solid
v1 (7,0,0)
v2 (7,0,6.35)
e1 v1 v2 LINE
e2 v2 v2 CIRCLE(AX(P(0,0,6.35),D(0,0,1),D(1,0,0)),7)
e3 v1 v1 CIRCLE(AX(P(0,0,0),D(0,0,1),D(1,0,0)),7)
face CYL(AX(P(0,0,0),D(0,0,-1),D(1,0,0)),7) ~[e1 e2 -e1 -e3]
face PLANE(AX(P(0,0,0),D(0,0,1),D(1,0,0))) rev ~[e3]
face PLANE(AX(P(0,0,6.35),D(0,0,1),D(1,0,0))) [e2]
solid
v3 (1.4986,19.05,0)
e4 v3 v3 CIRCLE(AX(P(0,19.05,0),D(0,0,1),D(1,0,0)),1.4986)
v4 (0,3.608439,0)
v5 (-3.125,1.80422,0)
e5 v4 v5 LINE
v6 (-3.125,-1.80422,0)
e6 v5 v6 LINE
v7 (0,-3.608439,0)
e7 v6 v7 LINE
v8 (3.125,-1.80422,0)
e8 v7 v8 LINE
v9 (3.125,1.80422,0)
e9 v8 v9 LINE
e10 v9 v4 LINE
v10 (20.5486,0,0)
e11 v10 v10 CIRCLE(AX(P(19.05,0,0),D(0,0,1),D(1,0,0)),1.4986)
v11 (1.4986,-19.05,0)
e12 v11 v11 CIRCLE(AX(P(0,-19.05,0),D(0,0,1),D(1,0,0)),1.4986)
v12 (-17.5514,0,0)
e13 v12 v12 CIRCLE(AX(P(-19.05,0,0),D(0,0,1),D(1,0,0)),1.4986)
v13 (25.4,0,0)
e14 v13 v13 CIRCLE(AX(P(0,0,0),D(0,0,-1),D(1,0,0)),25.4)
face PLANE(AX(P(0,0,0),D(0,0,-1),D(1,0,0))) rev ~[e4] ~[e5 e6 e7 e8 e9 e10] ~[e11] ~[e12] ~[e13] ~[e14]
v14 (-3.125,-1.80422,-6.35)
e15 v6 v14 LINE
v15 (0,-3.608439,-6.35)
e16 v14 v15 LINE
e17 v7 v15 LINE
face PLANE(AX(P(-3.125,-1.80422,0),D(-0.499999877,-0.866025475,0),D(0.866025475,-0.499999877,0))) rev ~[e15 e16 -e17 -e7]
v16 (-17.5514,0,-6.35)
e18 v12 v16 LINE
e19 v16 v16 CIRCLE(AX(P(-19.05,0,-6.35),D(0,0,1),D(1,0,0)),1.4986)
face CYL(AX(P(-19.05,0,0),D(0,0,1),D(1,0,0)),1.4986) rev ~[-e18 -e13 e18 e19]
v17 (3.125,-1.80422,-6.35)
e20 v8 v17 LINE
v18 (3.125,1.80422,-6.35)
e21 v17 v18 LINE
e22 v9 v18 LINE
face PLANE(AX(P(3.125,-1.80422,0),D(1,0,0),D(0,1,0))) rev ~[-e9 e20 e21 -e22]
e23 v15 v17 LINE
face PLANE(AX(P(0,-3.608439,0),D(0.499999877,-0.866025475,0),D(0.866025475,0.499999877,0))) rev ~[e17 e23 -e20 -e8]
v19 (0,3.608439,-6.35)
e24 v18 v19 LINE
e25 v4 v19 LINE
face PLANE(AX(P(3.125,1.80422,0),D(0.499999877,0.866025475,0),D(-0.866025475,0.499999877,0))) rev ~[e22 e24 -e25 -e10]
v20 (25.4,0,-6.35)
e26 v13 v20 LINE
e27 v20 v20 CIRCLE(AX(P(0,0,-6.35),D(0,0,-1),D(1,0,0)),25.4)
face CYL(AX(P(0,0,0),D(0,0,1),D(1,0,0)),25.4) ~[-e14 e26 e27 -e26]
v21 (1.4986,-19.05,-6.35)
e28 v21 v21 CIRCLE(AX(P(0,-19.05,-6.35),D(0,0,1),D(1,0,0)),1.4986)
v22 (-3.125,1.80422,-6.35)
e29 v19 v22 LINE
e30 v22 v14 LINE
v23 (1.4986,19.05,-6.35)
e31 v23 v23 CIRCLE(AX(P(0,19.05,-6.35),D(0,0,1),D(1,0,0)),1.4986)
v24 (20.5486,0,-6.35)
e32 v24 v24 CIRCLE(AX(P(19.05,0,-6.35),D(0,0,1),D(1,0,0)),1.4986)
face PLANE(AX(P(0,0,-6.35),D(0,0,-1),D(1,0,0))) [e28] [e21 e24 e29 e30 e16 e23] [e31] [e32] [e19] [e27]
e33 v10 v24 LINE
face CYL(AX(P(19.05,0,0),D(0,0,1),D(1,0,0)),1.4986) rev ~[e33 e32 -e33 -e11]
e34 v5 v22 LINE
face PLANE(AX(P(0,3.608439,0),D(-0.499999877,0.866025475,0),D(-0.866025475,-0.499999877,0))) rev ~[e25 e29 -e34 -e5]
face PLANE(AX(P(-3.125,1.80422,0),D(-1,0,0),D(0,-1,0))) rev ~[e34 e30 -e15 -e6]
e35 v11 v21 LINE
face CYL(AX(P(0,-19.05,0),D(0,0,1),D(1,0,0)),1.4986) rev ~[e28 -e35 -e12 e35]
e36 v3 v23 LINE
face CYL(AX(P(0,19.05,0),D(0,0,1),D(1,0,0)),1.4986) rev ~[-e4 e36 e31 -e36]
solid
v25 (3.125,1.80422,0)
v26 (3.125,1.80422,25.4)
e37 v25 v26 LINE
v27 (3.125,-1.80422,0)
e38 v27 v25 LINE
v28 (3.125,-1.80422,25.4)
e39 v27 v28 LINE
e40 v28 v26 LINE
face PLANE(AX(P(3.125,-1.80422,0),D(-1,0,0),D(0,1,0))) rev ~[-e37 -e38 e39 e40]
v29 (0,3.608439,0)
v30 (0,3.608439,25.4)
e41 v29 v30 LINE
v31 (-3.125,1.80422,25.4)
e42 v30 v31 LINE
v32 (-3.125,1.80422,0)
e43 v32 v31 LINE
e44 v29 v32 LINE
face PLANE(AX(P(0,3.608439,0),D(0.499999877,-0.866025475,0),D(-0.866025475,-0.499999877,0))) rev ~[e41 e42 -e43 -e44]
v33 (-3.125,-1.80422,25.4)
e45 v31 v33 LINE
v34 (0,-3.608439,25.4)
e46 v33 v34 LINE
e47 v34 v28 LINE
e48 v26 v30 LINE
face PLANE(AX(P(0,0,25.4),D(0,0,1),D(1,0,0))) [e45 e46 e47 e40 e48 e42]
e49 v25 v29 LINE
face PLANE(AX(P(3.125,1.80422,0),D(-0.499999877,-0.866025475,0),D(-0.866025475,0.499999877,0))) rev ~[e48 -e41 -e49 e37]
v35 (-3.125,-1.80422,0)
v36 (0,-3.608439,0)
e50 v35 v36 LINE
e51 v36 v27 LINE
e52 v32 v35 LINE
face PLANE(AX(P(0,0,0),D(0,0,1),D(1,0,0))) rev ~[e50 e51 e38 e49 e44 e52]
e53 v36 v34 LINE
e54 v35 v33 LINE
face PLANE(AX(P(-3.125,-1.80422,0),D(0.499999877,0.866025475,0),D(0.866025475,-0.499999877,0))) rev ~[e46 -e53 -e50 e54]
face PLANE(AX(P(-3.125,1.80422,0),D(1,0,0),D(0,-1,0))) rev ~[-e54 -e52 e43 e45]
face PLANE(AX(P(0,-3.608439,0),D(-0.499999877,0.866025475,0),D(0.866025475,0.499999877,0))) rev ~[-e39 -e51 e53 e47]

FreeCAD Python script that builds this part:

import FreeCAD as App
import Part
import Sketcher

V = App.Vector
Q = App.Units.Quantity

doc = App.newDocument("Part")
body = doc.addObject("PartDesign::Body", "Body")

sketch1 = doc.addObject("Sketcher::SketchObject", "Sketch")
body.addObject(sketch1)
sketch1.AttachmentSupport = (doc.XY_Plane, [""])
sketch1.MapMode = "FlatFace"
sketch1.addGeometry(Part.LineSegment(V(3.1, -1.8, 0), V(3.1, 1.8, 0)), False)
sketch1.addGeometry(Part.LineSegment(V(3.1, 1.8, 0), V(0, 3.6, 0)), False)
sketch1.addGeometry(Part.LineSegment(V(0, 3.6, 0), V(-3.1, 1.8, 0)), False)
sketch1.addGeometry(Part.LineSegment(V(-3.1, 1.8, 0), V(-3.1, -1.8, 0)), False)
sketch1.addGeometry(Part.LineSegment(V(-3.1, -1.8, 0), V(0, -3.6, 0)), False)
sketch1.addGeometry(Part.LineSegment(V(0, -3.6, 0), V(3.1, -1.8, 0)), False)
sketch1.addConstraint(Sketcher.Constraint("Coincident", 0, 2, 1, 1))
sketch1.addConstraint(Sketcher.Constraint("Coincident", 1, 2, 2, 1))
sketch1.addConstraint(Sketcher.Constraint("Coincident", 2, 2, 3, 1))
sketch1.addConstraint(Sketcher.Constraint("Coincident", 3, 2, 4, 1))
sketch1.addConstraint(Sketcher.Constraint("Coincident", 4, 2, 5, 1))
sketch1.addConstraint(Sketcher.Constraint("Coincident", 5, 2, 0, 1))
sketch1.addConstraint(Sketcher.Constraint("Vertical", 0))
sketch1.addConstraint(Sketcher.Constraint("Vertical", 3))
sketch1.addConstraint(Sketcher.Constraint("Symmetric", 0, 2, 3, 2, -1, 1))
sketch1.addConstraint(Sketcher.Constraint("Symmetric", 1, 2, 4, 2, -1, 1))
sketch1.addConstraint(Sketcher.Constraint("PointOnObject", 1, 2, -2))
sketch1.addConstraint(Sketcher.Constraint("Parallel", 2, 5))
sketch1.addConstraint(Sketcher.Constraint("Horizontal", 0, 2, 2, 2))
sketch1.addConstraint(Sketcher.Constraint("Angle", 1, Q("150.000008 deg")))
sketch1.addConstraint(Sketcher.Constraint("DistanceY", 0, 1, 0, 2, 3.60844))
sketch1.addConstraint(Sketcher.Constraint("DistanceX", -1, 1, 0, 2, 3.125))
pad1 = doc.addObject("PartDesign::Pad", "Pad")
body.addObject(pad1)
pad1.Profile = sketch1
pad1.Length = Q("1 in")
body2 = doc.addObject("PartDesign::Body", "Body001")

sketch2 = doc.addObject("Sketcher::SketchObject", "Sketch001")
body2.addObject(sketch2)
sketch2.AttachmentSupport = (doc.getObject("XY_Plane001"), [""])
sketch2.MapMode = "FlatFace"
sketch2.addGeometry(Part.Circle(V(0, 0, 0), V(0, 0, 1), 25.4), False)
sketch2.addGeometry(Part.LineSegment(V(-3.1, -1.8, 0), V(0, -3.6, 0)), False)
sketch2.addGeometry(Part.LineSegment(V(0, -3.6, 0), V(3.1, -1.8, 0)), False)
sketch2.addGeometry(Part.LineSegment(V(3.1, -1.8, 0), V(3.1, 1.8, 0)), False)
sketch2.addGeometry(Part.LineSegment(V(3.1, 1.8, 0), V(0, 3.6, 0)), False)
sketch2.addGeometry(Part.LineSegment(V(0, 3.6, 0), V(-3.1, 1.8, 0)), False)
sketch2.addGeometry(Part.LineSegment(V(-3.1, 1.8, 0), V(-3.1, -1.8, 0)), False)
sketch2.addConstraint(Sketcher.Constraint("Coincident", 1, 2, 2, 1))
sketch2.addConstraint(Sketcher.Constraint("Coincident", 2, 2, 3, 1))
sketch2.addConstraint(Sketcher.Constraint("Coincident", 3, 2, 4, 1))
sketch2.addConstraint(Sketcher.Constraint("Coincident", 4, 2, 5, 1))
sketch2.addConstraint(Sketcher.Constraint("Coincident", 5, 2, 6, 1))
sketch2.addConstraint(Sketcher.Constraint("Coincident", 6, 2, 1, 1))
sketch2.addConstraint(Sketcher.Constraint("Vertical", 3))
sketch2.addConstraint(Sketcher.Constraint("Vertical", 6))
sketch2.addConstraint(Sketcher.Constraint("Coincident", 0, 3, -1, 1))
sketch2.addConstraint(Sketcher.Constraint("Symmetric", 1, 2, 4, 2, -1, 1))
sketch2.addConstraint(Sketcher.Constraint("Symmetric", 2, 2, 5, 2, -1, 1))
sketch2.addConstraint(Sketcher.Constraint("PointOnObject", 1, 2, -2))
sketch2.addConstraint(Sketcher.Constraint("Parallel", 1, 4))
sketch2.addConstraint(Sketcher.Constraint("Horizontal", 3, 2, 5, 2))
sketch2.addConstraint(Sketcher.Constraint("Diameter", 0, Q("2 in")))
sketch2.addConstraint(Sketcher.Constraint("Angle", 1, Q("-29.999992 deg")))
sketch2.addConstraint(Sketcher.Constraint("DistanceY", 3, 1, 3, 2, 3.60844))
sketch2.addConstraint(Sketcher.Constraint("DistanceX", -1, 1, 2, 2, 3.125))
pad2 = doc.addObject("PartDesign::Pad", "Pad001")
body2.addObject(pad2)
pad2.Profile = sketch2
pad2.Length = Q("0.25 in")
pad2.Reversed = True

sketch3 = doc.addObject("Sketcher::SketchObject", "Sketch002")
body2.addObject(sketch3)
sketch3.AttachmentSupport = (doc.getObject("XY_Plane001"), [""])
sketch3.MapMode = "FlatFace"
sketch3.addGeometry(Part.Circle(V(0, 19.1, 0), V(0, 0, 1), 1.5), False)
sketch3.addGeometry(Part.Circle(V(19.1, 0, 0), V(0, 0, 1), 1.5), False)
sketch3.addGeometry(Part.Circle(V(0, -19.1, 0), V(0, 0, 1), 1.5), False)
sketch3.addGeometry(Part.Circle(V(-19.1, 0, 0), V(0, 0, 1), 1.5), False)
sketch3.addConstraint(Sketcher.Constraint("Equal", 0, 1))
sketch3.addConstraint(Sketcher.Constraint("Equal", 1, 2))
sketch3.addConstraint(Sketcher.Constraint("Equal", 2, 3))
sketch3.addConstraint(Sketcher.Constraint("Symmetric", 0, 3, 2, 3, -1, 1))
sketch3.addConstraint(Sketcher.Constraint("Symmetric", 1, 3, 3, 3, -1, 1))
sketch3.addConstraint(Sketcher.Constraint("PointOnObject", 0, 3, -2))
sketch3.addConstraint(Sketcher.Constraint("PointOnObject", 1, 3, -1))
sketch3.addConstraint(Sketcher.Constraint("Diameter", 0, Q("0.118 in")))
sketch3.addConstraint(Sketcher.Constraint("DistanceY", 2, 3, 0, 3, Q("1.5 in")))
sketch3.addConstraint(Sketcher.Constraint("DistanceX", 3, 3, 1, 3, Q("1.5 in")))
pocket1 = doc.addObject("PartDesign::Pocket", "Pocket")
body2.addObject(pocket1)
pocket1.Profile = sketch3
pocket1.Length = Q("1 in")
body3 = doc.addObject("PartDesign::Body", "Body002")

sketch4 = doc.addObject("Sketcher::SketchObject", "Sketch003")
body3.addObject(sketch4)
sketch4.AttachmentSupport = (doc.getObject("XY_Plane002"), [""])
sketch4.MapMode = "FlatFace"
sketch4.addGeometry(Part.Circle(V(0, 0, 0), V(0, 0, 1), 7), False)
sketch4.addConstraint(Sketcher.Constraint("Coincident", 0, 3, -1, 1))
sketch4.addConstraint(Sketcher.Constraint("Diameter", 0, 14.0))
pad3 = doc.addObject("PartDesign::Pad", "Pad002")
body3.addObject(pad3)
pad3.Profile = sketch4
pad3.Length = Q("0.25 in")

doc.recompute()
